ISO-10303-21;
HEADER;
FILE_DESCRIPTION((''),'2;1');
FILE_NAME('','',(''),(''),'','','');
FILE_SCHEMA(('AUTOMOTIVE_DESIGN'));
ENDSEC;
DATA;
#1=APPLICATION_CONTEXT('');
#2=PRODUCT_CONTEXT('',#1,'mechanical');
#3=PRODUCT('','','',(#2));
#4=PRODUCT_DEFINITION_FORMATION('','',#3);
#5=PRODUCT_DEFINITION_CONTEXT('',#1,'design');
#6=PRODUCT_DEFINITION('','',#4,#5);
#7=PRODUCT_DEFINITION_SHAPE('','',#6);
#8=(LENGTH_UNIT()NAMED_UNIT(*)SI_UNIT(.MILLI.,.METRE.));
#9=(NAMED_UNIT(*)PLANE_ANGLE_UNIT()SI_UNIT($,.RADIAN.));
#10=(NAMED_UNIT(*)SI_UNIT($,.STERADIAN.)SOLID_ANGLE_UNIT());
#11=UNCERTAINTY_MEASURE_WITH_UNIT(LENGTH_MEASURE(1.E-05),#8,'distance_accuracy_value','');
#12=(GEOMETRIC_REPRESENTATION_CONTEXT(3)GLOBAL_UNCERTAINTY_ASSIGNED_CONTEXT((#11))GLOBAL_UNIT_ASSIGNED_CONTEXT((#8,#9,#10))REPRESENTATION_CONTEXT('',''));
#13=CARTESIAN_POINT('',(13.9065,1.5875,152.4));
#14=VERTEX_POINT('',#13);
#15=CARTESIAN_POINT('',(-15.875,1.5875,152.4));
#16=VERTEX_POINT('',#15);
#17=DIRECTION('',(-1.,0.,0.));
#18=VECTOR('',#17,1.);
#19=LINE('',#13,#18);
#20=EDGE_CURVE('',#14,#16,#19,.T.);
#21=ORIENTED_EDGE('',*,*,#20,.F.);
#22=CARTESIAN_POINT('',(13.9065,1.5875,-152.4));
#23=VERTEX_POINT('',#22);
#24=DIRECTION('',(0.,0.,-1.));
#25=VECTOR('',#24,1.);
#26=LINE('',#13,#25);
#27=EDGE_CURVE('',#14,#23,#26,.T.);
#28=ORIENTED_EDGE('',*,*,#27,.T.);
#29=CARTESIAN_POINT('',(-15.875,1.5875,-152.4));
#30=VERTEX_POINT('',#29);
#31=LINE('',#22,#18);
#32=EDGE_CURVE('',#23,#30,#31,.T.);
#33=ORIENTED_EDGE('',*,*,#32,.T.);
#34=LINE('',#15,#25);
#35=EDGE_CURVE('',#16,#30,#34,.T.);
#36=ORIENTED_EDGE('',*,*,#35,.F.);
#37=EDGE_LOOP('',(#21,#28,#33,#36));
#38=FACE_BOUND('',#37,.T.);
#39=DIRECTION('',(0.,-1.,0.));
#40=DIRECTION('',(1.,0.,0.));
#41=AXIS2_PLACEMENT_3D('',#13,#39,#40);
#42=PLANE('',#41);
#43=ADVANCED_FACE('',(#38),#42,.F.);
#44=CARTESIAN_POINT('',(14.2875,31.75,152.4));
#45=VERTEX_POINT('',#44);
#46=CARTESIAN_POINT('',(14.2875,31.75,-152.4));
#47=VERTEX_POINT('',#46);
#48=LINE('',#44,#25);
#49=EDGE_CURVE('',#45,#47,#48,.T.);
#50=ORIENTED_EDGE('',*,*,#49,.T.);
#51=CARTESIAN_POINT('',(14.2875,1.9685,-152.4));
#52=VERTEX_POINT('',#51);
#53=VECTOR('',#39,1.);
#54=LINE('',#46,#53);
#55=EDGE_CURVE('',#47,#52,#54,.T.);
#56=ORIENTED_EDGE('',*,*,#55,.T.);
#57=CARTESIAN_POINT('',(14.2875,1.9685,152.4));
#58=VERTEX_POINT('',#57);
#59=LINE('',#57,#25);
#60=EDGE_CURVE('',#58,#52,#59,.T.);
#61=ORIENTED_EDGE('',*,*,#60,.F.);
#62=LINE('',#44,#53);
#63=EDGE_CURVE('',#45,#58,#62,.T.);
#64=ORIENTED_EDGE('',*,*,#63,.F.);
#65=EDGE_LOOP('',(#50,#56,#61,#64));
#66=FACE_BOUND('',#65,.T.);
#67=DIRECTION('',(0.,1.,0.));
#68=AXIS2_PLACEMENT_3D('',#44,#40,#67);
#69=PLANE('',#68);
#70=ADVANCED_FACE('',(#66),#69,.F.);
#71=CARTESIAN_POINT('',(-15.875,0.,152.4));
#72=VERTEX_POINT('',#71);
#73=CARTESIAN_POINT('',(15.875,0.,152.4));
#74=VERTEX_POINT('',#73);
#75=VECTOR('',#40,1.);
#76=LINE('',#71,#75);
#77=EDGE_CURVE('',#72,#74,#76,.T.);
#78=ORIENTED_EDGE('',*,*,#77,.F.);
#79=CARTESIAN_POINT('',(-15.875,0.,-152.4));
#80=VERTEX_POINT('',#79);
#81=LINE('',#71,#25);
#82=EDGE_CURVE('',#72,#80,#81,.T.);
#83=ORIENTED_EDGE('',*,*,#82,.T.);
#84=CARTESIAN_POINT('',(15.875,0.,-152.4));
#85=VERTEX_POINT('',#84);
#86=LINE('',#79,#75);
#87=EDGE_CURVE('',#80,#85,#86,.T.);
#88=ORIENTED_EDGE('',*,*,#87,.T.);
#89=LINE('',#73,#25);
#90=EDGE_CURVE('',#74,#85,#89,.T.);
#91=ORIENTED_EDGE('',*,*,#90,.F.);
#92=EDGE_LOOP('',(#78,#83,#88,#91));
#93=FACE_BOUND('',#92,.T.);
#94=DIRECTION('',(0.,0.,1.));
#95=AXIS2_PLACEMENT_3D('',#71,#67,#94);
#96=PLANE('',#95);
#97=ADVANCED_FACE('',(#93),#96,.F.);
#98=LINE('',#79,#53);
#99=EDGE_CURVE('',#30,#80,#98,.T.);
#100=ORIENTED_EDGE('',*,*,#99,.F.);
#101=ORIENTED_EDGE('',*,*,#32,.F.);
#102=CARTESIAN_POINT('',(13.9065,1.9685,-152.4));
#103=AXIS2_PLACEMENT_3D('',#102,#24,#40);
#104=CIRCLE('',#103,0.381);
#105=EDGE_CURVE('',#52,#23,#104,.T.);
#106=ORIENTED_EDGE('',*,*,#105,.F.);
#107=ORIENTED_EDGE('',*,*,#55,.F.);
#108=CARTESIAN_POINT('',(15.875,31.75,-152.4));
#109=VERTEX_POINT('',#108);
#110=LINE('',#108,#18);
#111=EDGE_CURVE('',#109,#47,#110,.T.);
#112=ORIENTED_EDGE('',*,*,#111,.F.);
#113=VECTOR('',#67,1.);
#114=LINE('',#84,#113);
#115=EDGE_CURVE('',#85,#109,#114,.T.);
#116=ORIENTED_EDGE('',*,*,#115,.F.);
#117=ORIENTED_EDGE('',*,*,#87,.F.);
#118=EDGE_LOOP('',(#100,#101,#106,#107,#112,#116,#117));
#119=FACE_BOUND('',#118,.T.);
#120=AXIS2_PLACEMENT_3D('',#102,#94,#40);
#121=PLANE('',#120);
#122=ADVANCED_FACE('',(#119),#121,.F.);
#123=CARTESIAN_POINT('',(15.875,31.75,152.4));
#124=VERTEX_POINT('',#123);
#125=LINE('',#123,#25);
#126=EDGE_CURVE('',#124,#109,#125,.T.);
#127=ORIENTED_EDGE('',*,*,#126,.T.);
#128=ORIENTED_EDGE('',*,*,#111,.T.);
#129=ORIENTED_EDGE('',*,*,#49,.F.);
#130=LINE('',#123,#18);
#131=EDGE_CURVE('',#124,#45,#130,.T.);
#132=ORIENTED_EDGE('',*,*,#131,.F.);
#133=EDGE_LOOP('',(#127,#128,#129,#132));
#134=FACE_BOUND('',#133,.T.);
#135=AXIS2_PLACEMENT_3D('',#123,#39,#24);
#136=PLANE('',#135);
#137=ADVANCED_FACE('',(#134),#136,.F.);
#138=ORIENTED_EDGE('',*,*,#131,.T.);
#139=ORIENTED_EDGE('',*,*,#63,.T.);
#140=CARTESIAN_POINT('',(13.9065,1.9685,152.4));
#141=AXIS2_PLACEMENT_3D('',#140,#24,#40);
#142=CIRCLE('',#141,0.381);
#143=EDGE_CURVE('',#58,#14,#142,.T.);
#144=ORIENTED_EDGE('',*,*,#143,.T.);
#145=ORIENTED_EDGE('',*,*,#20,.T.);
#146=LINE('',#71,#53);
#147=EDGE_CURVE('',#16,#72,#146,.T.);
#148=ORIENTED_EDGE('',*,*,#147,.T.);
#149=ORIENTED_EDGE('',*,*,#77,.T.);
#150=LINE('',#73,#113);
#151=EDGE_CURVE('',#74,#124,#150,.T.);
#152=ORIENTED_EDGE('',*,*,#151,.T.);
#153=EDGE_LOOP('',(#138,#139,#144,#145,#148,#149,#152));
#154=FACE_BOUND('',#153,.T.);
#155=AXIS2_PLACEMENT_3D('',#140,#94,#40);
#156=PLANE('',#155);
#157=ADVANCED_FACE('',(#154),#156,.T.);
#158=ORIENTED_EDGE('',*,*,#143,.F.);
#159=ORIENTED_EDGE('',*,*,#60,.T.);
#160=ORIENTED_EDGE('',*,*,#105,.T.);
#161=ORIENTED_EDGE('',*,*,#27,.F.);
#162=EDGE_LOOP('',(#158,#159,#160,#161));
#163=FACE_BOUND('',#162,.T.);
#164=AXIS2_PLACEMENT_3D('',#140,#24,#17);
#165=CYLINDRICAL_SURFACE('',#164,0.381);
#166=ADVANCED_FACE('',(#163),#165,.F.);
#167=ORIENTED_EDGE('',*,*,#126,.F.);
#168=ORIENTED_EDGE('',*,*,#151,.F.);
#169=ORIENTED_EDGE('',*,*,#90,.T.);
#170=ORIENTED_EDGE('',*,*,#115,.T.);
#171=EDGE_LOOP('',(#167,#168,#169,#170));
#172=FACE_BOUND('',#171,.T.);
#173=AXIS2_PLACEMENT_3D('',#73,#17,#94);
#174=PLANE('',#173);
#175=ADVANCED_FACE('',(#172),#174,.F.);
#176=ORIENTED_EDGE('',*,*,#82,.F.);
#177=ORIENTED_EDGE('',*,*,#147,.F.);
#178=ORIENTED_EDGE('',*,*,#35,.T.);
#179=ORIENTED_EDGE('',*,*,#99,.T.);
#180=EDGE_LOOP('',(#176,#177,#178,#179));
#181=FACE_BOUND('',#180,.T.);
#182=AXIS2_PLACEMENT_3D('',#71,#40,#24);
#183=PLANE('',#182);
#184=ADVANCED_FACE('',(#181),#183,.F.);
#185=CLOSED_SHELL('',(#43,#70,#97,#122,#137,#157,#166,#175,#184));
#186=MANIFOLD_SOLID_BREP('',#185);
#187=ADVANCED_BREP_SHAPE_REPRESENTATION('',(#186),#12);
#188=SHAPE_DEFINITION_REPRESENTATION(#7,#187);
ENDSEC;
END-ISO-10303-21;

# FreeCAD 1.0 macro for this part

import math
import FreeCAD as App
import Part
import Sketcher
Q = App.Units.Quantity

doc = App.newDocument("Part")
body = doc.addObject("PartDesign::Body", "Body")

# Sketch on XY plane
sketch1 = body.newObject("Sketcher::SketchObject", "Sketch")
sketch1.AttachmentSupport = (doc.getObject("XY_Plane"), [""])
sketch1.MapMode = "FlatFace"
sketch1.addGeometry([
    Part.LineSegment(App.Vector(-15.875, 0, 0), App.Vector(15.875, 0, 0)),  # 0
    Part.LineSegment(App.Vector(15.875, 0, 0), App.Vector(15.875, 31.75, 0)),  # 1
    Part.LineSegment(App.Vector(15.875, 31.75, 0), App.Vector(14.2875, 31.75, 0)),  # 2
    Part.LineSegment(App.Vector(14.2875, 31.75, 0), App.Vector(14.2875, 1.9685, 0)),  # 3
    Part.ArcOfCircle(Part.Circle(App.Vector(13.9065, 1.9685, 0), App.Vector(0, 0, 1), 0.381), math.radians(-90), math.radians(0)),  # 4
    Part.LineSegment(App.Vector(13.9065, 1.5875, 0), App.Vector(-15.875, 1.5875, 0)),  # 5
    Part.LineSegment(App.Vector(-15.875, 1.5875, 0), App.Vector(-15.875, 0, 0)),  # 6
], False)
sketch1.addConstraint([
    Sketcher.Constraint("Coincident", 0, 2, 1, 1),
    Sketcher.Constraint("Coincident", 1, 2, 2, 1),
    Sketcher.Constraint("Coincident", 2, 2, 3, 1),
    Sketcher.Constraint("Tangent", 3, 2, 4, 2),
    Sketcher.Constraint("Tangent", 4, 1, 5, 1),
    Sketcher.Constraint("Coincident", 5, 2, 6, 1),
    Sketcher.Constraint("Coincident", 6, 2, 0, 1),
    Sketcher.Constraint("Horizontal", 0),
    Sketcher.Constraint("Vertical", 1),
    Sketcher.Constraint("Horizontal", 2),
    Sketcher.Constraint("Vertical", 3),
    Sketcher.Constraint("Horizontal", 5),
    Sketcher.Constraint("Vertical", 6),
    Sketcher.Constraint("Symmetric", 0, 2, 6, 2, -1, 1),
    Sketcher.Constraint("Equal", 0, 1),
    Sketcher.Constraint("Equal", 5, 3),
    Sketcher.Constraint("Radius", 4, Q("0.015 in")),
    Sketcher.Constraint("DistanceX", 0, 1, 0, 2, Q("1.25 in")),
    Sketcher.Constraint("DistanceX", 2, 2, 2, 1, Q("0.0625 in")),
])
pad1 = body.newObject("PartDesign::Pad", "Pad")
pad1.Profile = sketch1
pad1.Length = Q("12 in")
pad1.Midplane = True

doc.recompute()
